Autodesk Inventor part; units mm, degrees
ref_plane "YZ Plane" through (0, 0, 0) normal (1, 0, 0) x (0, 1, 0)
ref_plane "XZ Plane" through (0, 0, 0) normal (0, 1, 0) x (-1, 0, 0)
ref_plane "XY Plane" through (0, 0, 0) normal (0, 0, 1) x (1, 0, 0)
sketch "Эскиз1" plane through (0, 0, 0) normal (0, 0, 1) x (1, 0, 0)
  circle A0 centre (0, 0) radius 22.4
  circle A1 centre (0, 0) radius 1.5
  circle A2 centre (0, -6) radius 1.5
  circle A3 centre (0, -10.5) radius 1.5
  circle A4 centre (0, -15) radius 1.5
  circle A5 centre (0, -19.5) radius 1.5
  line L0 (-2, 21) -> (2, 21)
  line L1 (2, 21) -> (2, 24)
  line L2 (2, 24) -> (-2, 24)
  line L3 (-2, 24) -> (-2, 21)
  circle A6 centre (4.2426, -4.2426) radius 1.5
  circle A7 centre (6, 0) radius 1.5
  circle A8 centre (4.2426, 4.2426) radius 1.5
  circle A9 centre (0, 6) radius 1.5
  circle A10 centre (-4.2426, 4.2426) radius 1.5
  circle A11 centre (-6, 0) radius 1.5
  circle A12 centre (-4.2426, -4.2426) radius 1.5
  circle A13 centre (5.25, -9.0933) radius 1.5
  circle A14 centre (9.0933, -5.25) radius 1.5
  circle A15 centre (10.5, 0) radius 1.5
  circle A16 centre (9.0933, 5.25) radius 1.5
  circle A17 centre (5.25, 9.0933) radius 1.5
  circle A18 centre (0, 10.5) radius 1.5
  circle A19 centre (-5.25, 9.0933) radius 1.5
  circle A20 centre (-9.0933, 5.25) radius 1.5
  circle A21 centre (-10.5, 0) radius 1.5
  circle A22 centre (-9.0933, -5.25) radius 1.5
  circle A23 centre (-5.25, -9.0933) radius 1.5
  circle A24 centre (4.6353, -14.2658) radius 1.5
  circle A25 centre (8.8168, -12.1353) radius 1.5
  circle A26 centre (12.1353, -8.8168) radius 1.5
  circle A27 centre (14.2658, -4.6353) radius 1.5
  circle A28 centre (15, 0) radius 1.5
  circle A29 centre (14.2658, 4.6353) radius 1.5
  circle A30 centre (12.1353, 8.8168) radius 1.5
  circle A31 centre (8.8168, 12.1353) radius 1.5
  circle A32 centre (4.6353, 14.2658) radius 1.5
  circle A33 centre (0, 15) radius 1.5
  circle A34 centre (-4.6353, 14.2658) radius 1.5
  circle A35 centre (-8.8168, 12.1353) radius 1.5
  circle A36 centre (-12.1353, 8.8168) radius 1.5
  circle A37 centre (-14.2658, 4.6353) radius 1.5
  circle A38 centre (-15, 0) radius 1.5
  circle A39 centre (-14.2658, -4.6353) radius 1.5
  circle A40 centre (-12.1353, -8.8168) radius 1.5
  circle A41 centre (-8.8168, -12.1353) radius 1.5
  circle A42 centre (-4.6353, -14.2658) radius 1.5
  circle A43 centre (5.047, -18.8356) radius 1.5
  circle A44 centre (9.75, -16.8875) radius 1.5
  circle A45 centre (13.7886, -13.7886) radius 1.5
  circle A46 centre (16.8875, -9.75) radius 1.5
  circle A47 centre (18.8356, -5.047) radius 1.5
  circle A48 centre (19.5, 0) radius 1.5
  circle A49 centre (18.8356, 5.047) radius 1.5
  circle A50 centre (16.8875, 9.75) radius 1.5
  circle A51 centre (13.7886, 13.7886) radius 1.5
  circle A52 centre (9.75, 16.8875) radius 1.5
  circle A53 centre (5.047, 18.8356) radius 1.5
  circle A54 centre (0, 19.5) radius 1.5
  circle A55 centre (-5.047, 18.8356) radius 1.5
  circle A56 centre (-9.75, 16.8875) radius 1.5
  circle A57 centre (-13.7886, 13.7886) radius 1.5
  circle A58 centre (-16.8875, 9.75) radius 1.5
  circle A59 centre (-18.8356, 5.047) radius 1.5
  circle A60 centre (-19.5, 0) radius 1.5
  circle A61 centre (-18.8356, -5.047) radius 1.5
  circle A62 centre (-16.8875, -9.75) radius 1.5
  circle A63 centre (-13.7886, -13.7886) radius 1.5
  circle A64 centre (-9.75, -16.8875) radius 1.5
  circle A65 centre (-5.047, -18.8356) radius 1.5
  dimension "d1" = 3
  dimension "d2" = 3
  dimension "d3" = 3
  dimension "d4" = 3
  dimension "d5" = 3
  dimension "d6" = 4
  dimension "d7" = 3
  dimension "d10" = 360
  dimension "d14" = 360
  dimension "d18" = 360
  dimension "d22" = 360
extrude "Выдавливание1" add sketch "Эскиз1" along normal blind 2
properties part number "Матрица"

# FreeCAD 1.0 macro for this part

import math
import FreeCAD as App
import Part
import Sketcher

V = App.Vector

doc = App.newDocument("Part")
body = doc.addObject("PartDesign::Body", "Body")

# Sketch on XY plane
sketch1 = body.newObject("Sketcher::SketchObject", "Sketch")
sketch1.AttachmentSupport = (doc.getObject("XY_Plane"), [""])
sketch1.MapMode = "FlatFace"
sketch1.addGeometry(Part.ArcOfCircle(Part.Circle(V(0, 0, 0), V(0, 0, 1), 22.4), math.radians(95), math.radians(445)), False)
sketch1.addGeometry(Part.LineSegment(V(2, 22.3, 0), V(2, 24, 0)), False)
sketch1.addGeometry(Part.LineSegment(V(2, 24, 0), V(-2, 24, 0)), False)
sketch1.addGeometry(Part.LineSegment(V(-2, 24, 0), V(-2, 22.3, 0)), False)
sketch1.addGeometry(Part.Circle(V(-13.8, -13.8, 0), V(0, 0, 1), 1.5), False)
sketch1.addGeometry(Part.Circle(V(-9.8, -16.9, 0), V(0, 0, 1), 1.5), False)
sketch1.addGeometry(Part.Circle(V(-5, -18.8, 0), V(0, 0, 1), 1.5), False)
sketch1.addGeometry(Part.Circle(V(-8.8, -12.1, 0), V(0, 0, 1), 1.5), False)
sketch1.addGeometry(Part.Circle(V(-4.6, -14.3, 0), V(0, 0, 1), 1.5), False)
sketch1.addGeometry(Part.Circle(V(-16.9, -9.8, 0), V(0, 0, 1), 1.5), False)
sketch1.addGeometry(Part.Circle(V(-18.8, -5, 0), V(0, 0, 1), 1.5), False)
sketch1.addGeometry(Part.Circle(V(-12.1, -8.8, 0), V(0, 0, 1), 1.5), False)
sketch1.addGeometry(Part.Circle(V(-19.5, 0, 0), V(0, 0, 1), 1.5), False)
sketch1.addGeometry(Part.Circle(V(-14.3, -4.6, 0), V(0, 0, 1), 1.5), False)
sketch1.addGeometry(Part.Circle(V(-15, 0, 0), V(0, 0, 1), 1.5), False)
sketch1.addGeometry(Part.Circle(V(-9.1, -5.2, 0), V(0, 0, 1), 1.5), False)
sketch1.addGeometry(Part.Circle(V(-5.2, -9.1, 0), V(0, 0, 1), 1.5), False)
sketch1.addGeometry(Part.Circle(V(-10.5, 0, 0), V(0, 0, 1), 1.5), False)
sketch1.addGeometry(Part.Circle(V(-6, 0, 0), V(0, 0, 1), 1.5), False)
sketch1.addGeometry(Part.Circle(V(-4.2, -4.2, 0), V(0, 0, 1), 1.5), False)
sketch1.addGeometry(Part.Circle(V(0, -19.5, 0), V(0, 0, 1), 1.5), False)
sketch1.addGeometry(Part.Circle(V(5, -18.8, 0), V(0, 0, 1), 1.5), False)
sketch1.addGeometry(Part.Circle(V(9.8, -16.9, 0), V(0, 0, 1), 1.5), False)
sketch1.addGeometry(Part.Circle(V(0, -15, 0), V(0, 0, 1), 1.5), False)
sketch1.addGeometry(Part.Circle(V(4.6, -14.3, 0), V(0, 0, 1), 1.5), False)
sketch1.addGeometry(Part.Circle(V(8.8, -12.1, 0), V(0, 0, 1), 1.5), False)
sketch1.addGeometry(Part.Circle(V(13.8, -13.8, 0), V(0, 0, 1), 1.5), False)
sketch1.addGeometry(Part.Circle(V(0, -10.5, 0), V(0, 0, 1), 1.5), False)
sketch1.addGeometry(Part.Circle(V(5.2, -9.1, 0), V(0, 0, 1), 1.5), False)
sketch1.addGeometry(Part.Circle(V(0, -6, 0), V(0, 0, 1), 1.5), False)
sketch1.addGeometry(Part.Circle(V(9.1, -5.2, 0), V(0, 0, 1), 1.5), False)
sketch1.addGeometry(Part.Circle(V(4.2, -4.2, 0), V(0, 0, 1), 1.5), False)
sketch1.addGeometry(Part.Circle(V(0, 0, 0), V(0, 0, 1), 1.5), False)
sketch1.addGeometry(Part.Circle(V(6, 0, 0), V(0, 0, 1), 1.5), False)
sketch1.addGeometry(Part.Circle(V(10.5, 0, 0), V(0, 0, 1), 1.5), False)
sketch1.addGeometry(Part.Circle(V(12.1, -8.8, 0), V(0, 0, 1), 1.5), False)
sketch1.addGeometry(Part.Circle(V(16.9, -9.8, 0), V(0, 0, 1), 1.5), False)
sketch1.addGeometry(Part.Circle(V(18.8, -5, 0), V(0, 0, 1), 1.5), False)
sketch1.addGeometry(Part.Circle(V(14.3, -4.6, 0), V(0, 0, 1), 1.5), False)
sketch1.addGeometry(Part.Circle(V(15, 0, 0), V(0, 0, 1), 1.5), False)
sketch1.addGeometry(Part.Circle(V(19.5, 0, 0), V(0, 0, 1), 1.5), False)
sketch1.addGeometry(Part.Circle(V(-18.8, 5, 0), V(0, 0, 1), 1.5), False)
sketch1.addGeometry(Part.Circle(V(-14.3, 4.6, 0), V(0, 0, 1), 1.5), False)
sketch1.addGeometry(Part.Circle(V(-16.9, 9.8, 0), V(0, 0, 1), 1.5), False)
sketch1.addGeometry(Part.Circle(V(-12.1, 8.8, 0), V(0, 0, 1), 1.5), False)
sketch1.addGeometry(Part.Circle(V(-9.1, 5.2, 0), V(0, 0, 1), 1.5), False)
sketch1.addGeometry(Part.Circle(V(-4.2, 4.2, 0), V(0, 0, 1), 1.5), False)
sketch1.addGeometry(Part.Circle(V(-8.8, 12.1, 0), V(0, 0, 1), 1.5), False)
sketch1.addGeometry(Part.Circle(V(-5.2, 9.1, 0), V(0, 0, 1), 1.5), False)
sketch1.addGeometry(Part.Circle(V(-13.8, 13.8, 0), V(0, 0, 1), 1.5), False)
sketch1.addGeometry(Part.Circle(V(-9.8, 16.9, 0), V(0, 0, 1), 1.5), False)
sketch1.addGeometry(Part.Circle(V(-4.6, 14.3, 0), V(0, 0, 1), 1.5), False)
sketch1.addGeometry(Part.Circle(V(-5, 18.8, 0), V(0, 0, 1), 1.5), False)
sketch1.addGeometry(Part.Circle(V(0, 6, 0), V(0, 0, 1), 1.5), False)
sketch1.addGeometry(Part.Circle(V(4.2, 4.2, 0), V(0, 0, 1), 1.5), False)
sketch1.addGeometry(Part.Circle(V(9.1, 5.2, 0), V(0, 0, 1), 1.5), False)
sketch1.addGeometry(Part.Circle(V(5.2, 9.1, 0), V(0, 0, 1), 1.5), False)
sketch1.addGeometry(Part.Circle(V(0, 10.5, 0), V(0, 0, 1), 1.5), False)
sketch1.addGeometry(Part.Circle(V(8.8, 12.1, 0), V(0, 0, 1), 1.5), False)
sketch1.addGeometry(Part.Circle(V(14.3, 4.6, 0), V(0, 0, 1), 1.5), False)
sketch1.addGeometry(Part.Circle(V(18.8, 5, 0), V(0, 0, 1), 1.5), False)
sketch1.addGeometry(Part.Circle(V(12.1, 8.8, 0), V(0, 0, 1), 1.5), False)
sketch1.addGeometry(Part.Circle(V(16.9, 9.8, 0), V(0, 0, 1), 1.5), False)
sketch1.addGeometry(Part.Circle(V(0, 15, 0), V(0, 0, 1), 1.5), False)
sketch1.addGeometry(Part.Circle(V(4.6, 14.3, 0), V(0, 0, 1), 1.5), False)
sketch1.addGeometry(Part.Circle(V(9.8, 16.9, 0), V(0, 0, 1), 1.5), False)
sketch1.addGeometry(Part.Circle(V(0, 19.5, 0), V(0, 0, 1), 1.5), False)
sketch1.addGeometry(Part.Circle(V(5, 18.8, 0), V(0, 0, 1), 1.5), False)
sketch1.addGeometry(Part.Circle(V(13.8, 13.8, 0), V(0, 0, 1), 1.5), False)
sketch1.addConstraint(Sketcher.Constraint("Coincident", 0, 2, 1, 1))
sketch1.addConstraint(Sketcher.Constraint("Coincident", 1, 2, 2, 1))
sketch1.addConstraint(Sketcher.Constraint("Coincident", 2, 2, 3, 1))
sketch1.addConstraint(Sketcher.Constraint("Coincident", 3, 2, 0, 1))
sketch1.addConstraint(Sketcher.Constraint("Vertical", 1))
sketch1.addConstraint(Sketcher.Constraint("Horizontal", 2))
sketch1.addConstraint(Sketcher.Constraint("Vertical", 3))
sketch1.addConstraint(Sketcher.Constraint("Coincident", 0, 3, -1, 1))
sketch1.addConstraint(Sketcher.Constraint("Coincident", 32, 3, -1, 1))
sketch1.addConstraint(Sketcher.Constraint("Equal", 4, 5))
sketch1.addConstraint(Sketcher.Constraint("Equal", 5, 6))
sketch1.addConstraint(Sketcher.Constraint("Equal", 6, 7))
sketch1.addConstraint(Sketcher.Constraint("Equal", 7, 8))
sketch1.addConstraint(Sketcher.Constraint("Equal", 8, 9))
sketch1.addConstraint(Sketcher.Constraint("Equal", 9, 10))
sketch1.addConstraint(Sketcher.Constraint("Equal", 10, 11))
sketch1.addConstraint(Sketcher.Constraint("Equal", 11, 12))
sketch1.addConstraint(Sketcher.Constraint("Equal", 12, 13))
sketch1.addConstraint(Sketcher.Constraint("Equal", 13, 14))
sketch1.addConstraint(Sketcher.Constraint("Equal", 14, 15))
sketch1.addConstraint(Sketcher.Constraint("Equal", 15, 16))
sketch1.addConstraint(Sketcher.Constraint("Equal", 16, 17))
sketch1.addConstraint(Sketcher.Constraint("Equal", 17, 18))
sketch1.addConstraint(Sketcher.Constraint("Equal", 18, 19))
sketch1.addConstraint(Sketcher.Constraint("Equal", 19, 20))
sketch1.addConstraint(Sketcher.Constraint("Equal", 20, 21))
sketch1.addConstraint(Sketcher.Constraint("Equal", 21, 22))
sketch1.addConstraint(Sketcher.Constraint("Equal", 22, 23))
sketch1.addConstraint(Sketcher.Constraint("Equal", 23, 24))
sketch1.addConstraint(Sketcher.Constraint("Equal", 24, 25))
sketch1.addConstraint(Sketcher.Constraint("Equal", 25, 26))
sketch1.addConstraint(Sketcher.Constraint("Equal", 26, 27))
sketch1.addConstraint(Sketcher.Constraint("Equal", 27, 28))
sketch1.addConstraint(Sketcher.Constraint("Equal", 28, 29))
sketch1.addConstraint(Sketcher.Constraint("Equal", 29, 30))
sketch1.addConstraint(Sketcher.Constraint("Equal", 30, 31))
sketch1.addConstraint(Sketcher.Constraint("Equal", 31, 32))
sketch1.addConstraint(Sketcher.Constraint("Equal", 32, 33))
sketch1.addConstraint(Sketcher.Constraint("Equal", 33, 34))
sketch1.addConstraint(Sketcher.Constraint("Equal", 34, 35))
sketch1.addConstraint(Sketcher.Constraint("Equal", 35, 36))
sketch1.addConstraint(Sketcher.Constraint("Equal", 36, 37))
sketch1.addConstraint(Sketcher.Constraint("Equal", 37, 38))
sketch1.addConstraint(Sketcher.Constraint("Equal", 38, 39))
sketch1.addConstraint(Sketcher.Constraint("Equal", 39, 40))
sketch1.addConstraint(Sketcher.Constraint("Equal", 40, 41))
sketch1.addConstraint(Sketcher.Constraint("Equal", 41, 42))
sketch1.addConstraint(Sketcher.Constraint("Equal", 42, 43))
sketch1.addConstraint(Sketcher.Constraint("Equal", 43, 44))
sketch1.addConstraint(Sketcher.Constraint("Equal", 44, 45))
sketch1.addConstraint(Sketcher.Constraint("Equal", 45, 46))
sketch1.addConstraint(Sketcher.Constraint("Equal", 46, 47))
sketch1.addConstraint(Sketcher.Constraint("Equal", 47, 48))
sketch1.addConstraint(Sketcher.Constraint("Equal", 48, 49))
sketch1.addConstraint(Sketcher.Constraint("Equal", 49, 50))
sketch1.addConstraint(Sketcher.Constraint("Equal", 50, 51))
sketch1.addConstraint(Sketcher.Constraint("Equal", 51, 52))
sketch1.addConstraint(Sketcher.Constraint("Equal", 52, 53))
sketch1.addConstraint(Sketcher.Constraint("Equal", 53, 54))
sketch1.addConstraint(Sketcher.Constraint("Equal", 54, 55))
sketch1.addConstraint(Sketcher.Constraint("Equal", 55, 56))
sketch1.addConstraint(Sketcher.Constraint("Equal", 56, 57))
sketch1.addConstraint(Sketcher.Constraint("Equal", 57, 58))
sketch1.addConstraint(Sketcher.Constraint("Equal", 58, 59))
sketch1.addConstraint(Sketcher.Constraint("Equal", 59, 60))
sketch1.addConstraint(Sketcher.Constraint("Equal", 60, 61))
sketch1.addConstraint(Sketcher.Constraint("Equal", 61, 62))
sketch1.addConstraint(Sketcher.Constraint("Equal", 62, 63))
sketch1.addConstraint(Sketcher.Constraint("Equal", 63, 64))
sketch1.addConstraint(Sketcher.Constraint("Equal", 64, 65))
sketch1.addConstraint(Sketcher.Constraint("Equal", 65, 66))
sketch1.addConstraint(Sketcher.Constraint("Equal", 66, 67))
sketch1.addConstraint(Sketcher.Constraint("Equal", 67, 68))
sketch1.addConstraint(Sketcher.Constraint("Symmetric", 18, 3, 33, 3, -1, 1))
sketch1.addConstraint(Sketcher.Constraint("Symmetric", 17, 3, 34, 3, -1, 1))
sketch1.addConstraint(Sketcher.Constraint("Symmetric", 14, 3, 39, 3, -1, 1))
sketch1.addConstraint(Sketcher.Constraint("Symmetric", 12, 3, 40, 3, -1, 1))
sketch1.addConstraint(Sketcher.Constraint("Symmetric", 37, 3, 41, 3, -1, 1))
sketch1.addConstraint(Sketcher.Constraint("Symmetric", 38, 3, 42, 3, -1, 1))
sketch1.addConstraint(Sketcher.Constraint("Symmetric", 36, 3, 43, 3, -1, 1))
sketch1.addConstraint(Sketcher.Constraint("Symmetric", 35, 3, 44, 3, -1, 1))
sketch1.addConstraint(Sketcher.Constraint("Symmetric", 30, 3, 45, 3, -1, 1))
sketch1.addConstraint(Sketcher.Constraint("Symmetric", 31, 3, 46, 3, -1, 1))
sketch1.addConstraint(Sketcher.Constraint("Symmetric", 25, 3, 47, 3, -1, 1))
sketch1.addConstraint(Sketcher.Constraint("Symmetric", 28, 3, 48, 3, -1, 1))
sketch1.addConstraint(Sketcher.Constraint("Symmetric", 26, 3, 49, 3, -1, 1))
sketch1.addConstraint(Sketcher.Constraint("Symmetric", 22, 3, 50, 3, -1, 1))
sketch1.addConstraint(Sketcher.Constraint("Symmetric", 24, 3, 51, 3, -1, 1))
sketch1.addConstraint(Sketcher.Constraint("Symmetric", 21, 3, 52, 3, -1, 1))
sketch1.addConstraint(Sketcher.Constraint("Symmetric", 29, 3, 53, 3, -1, 1))
sketch1.addConstraint(Sketcher.Constraint("Symmetric", 19, 3, 54, 3, -1, 1))
sketch1.addConstraint(Sketcher.Constraint("Symmetric", 15, 3, 55, 3, -1, 1))
sketch1.addConstraint(Sketcher.Constraint("Symmetric", 16, 3, 56, 3, -1, 1))
sketch1.addConstraint(Sketcher.Constraint("Symmetric", 27, 3, 57, 3, -1, 1))
sketch1.addConstraint(Sketcher.Constraint("Symmetric", 7, 3, 58, 3, -1, 1))
sketch1.addConstraint(Sketcher.Constraint("Symmetric", 13, 3, 59, 3, -1, 1))
sketch1.addConstraint(Sketcher.Constraint("Symmetric", 10, 3, 60, 3, -1, 1))
sketch1.addConstraint(Sketcher.Constraint("Symmetric", 11, 3, 61, 3, -1, 1))
sketch1.addConstraint(Sketcher.Constraint("Symmetric", 9, 3, 62, 3, -1, 1))
sketch1.addConstraint(Sketcher.Constraint("Symmetric", 23, 3, 63, 3, -1, 1))
sketch1.addConstraint(Sketcher.Constraint("Symmetric", 8, 3, 64, 3, -1, 1))
sketch1.addConstraint(Sketcher.Constraint("Symmetric", 5, 3, 65, 3, -1, 1))
sketch1.addConstraint(Sketcher.Constraint("Symmetric", 20, 3, 66, 3, -1, 1))
sketch1.addConstraint(Sketcher.Constraint("Symmetric", 6, 3, 67, 3, -1, 1))
sketch1.addConstraint(Sketcher.Constraint("Symmetric", 4, 3, 68, 3, -1, 1))
sketch1.addConstraint(Sketcher.Constraint("Symmetric", 6, 3, 21, 3, -2))
sketch1.addConstraint(Sketcher.Constraint("Symmetric", 5, 3, 22, 3, -2))
sketch1.addConstraint(Sketcher.Constraint("Symmetric", 8, 3, 24, 3, -2))
sketch1.addConstraint(Sketcher.Constraint("Symmetric", 7, 3, 25, 3, -2))
sketch1.addConstraint(Sketcher.Constraint("Symmetric", 4, 3, 26, 3, -2))
sketch1.addConstraint(Sketcher.Constraint("Symmetric", 16, 3, 28, 3, -2))
sketch1.addConstraint(Sketcher.Constraint("Symmetric", 15, 3, 30, 3, -2))
sketch1.addConstraint(Sketcher.Constraint("Symmetric", 19, 3, 31, 3, -2))
sketch1.addConstraint(Sketcher.Constraint("Symmetric", 11, 3, 35, 3, -2))
sketch1.addConstraint(Sketcher.Constraint("Symmetric", 9, 3, 36, 3, -2))
sketch1.addConstraint(Sketcher.Constraint("Symmetric", 10, 3, 37, 3, -2))
sketch1.addConstraint(Sketcher.Constraint("Symmetric", 13, 3, 38, 3, -2))
sketch1.addConstraint(Sketcher.Constraint("PointOnObject", 12, 3, -1))
sketch1.addConstraint(Sketcher.Constraint("PointOnObject", 14, 3, -1))
sketch1.addConstraint(Sketcher.Constraint("PointOnObject", 17, 3, -1))
sketch1.addConstraint(Sketcher.Constraint("PointOnObject", 18, 3, -1))
sketch1.addConstraint(Sketcher.Constraint("PointOnObject", 20, 3, -2))
sketch1.addConstraint(Sketcher.Constraint("PointOnObject", 23, 3, -2))
sketch1.addConstraint(Sketcher.Constraint("PointOnObject", 27, 3, -2))
sketch1.addConstraint(Sketcher.Constraint("PointOnObject", 29, 3, -2))
sketch1.addConstraint(Sketcher.Constraint("Horizontal", 0, 2, 3, 2))
sketch1.addConstraint(Sketcher.Constraint("Diameter", 4, 3.0))
sketch1.addConstraint(Sketcher.Constraint("DistanceX", 2, 2, 2, 1, 4.0))
sketch1.addConstraint(Sketcher.Constraint("Radius", 0, 22.4))
sketch1.addConstraint(Sketcher.Constraint("DistanceX", 14, 3, -1, 1, 15.0))
sketch1.addConstraint(Sketcher.Constraint("DistanceX", 18, 3, -1, 1, 6.0))
sketch1.addConstraint(Sketcher.Constraint("DistanceY", 23, 3, -1, 1, 15.0))
sketch1.addConstraint(Sketcher.Constraint("DistanceY", 29, 3, -1, 1, 6.0))
sketch1.addConstraint(Sketcher.Constraint("DistanceY", -1, 1, 1, 2, 24.0))
sketch1.addConstraint(Sketcher.Constraint("DistanceX", 12, 3, -1, 1, 19.5))
sketch1.addConstraint(Sketcher.Constraint("DistanceX", 17, 3, -1, 1, 10.5))
sketch1.addConstraint(Sketcher.Constraint("DistanceY", 20, 3, -1, 1, 19.5))
sketch1.addConstraint(Sketcher.Constraint("DistanceY", 27, 3, -1, 1, 10.5))
sketch1.addConstraint(Sketcher.Constraint("DistanceX", 5, 3, -1, 1, 9.75))
sketch1.addConstraint(Sketcher.Constraint("DistanceY", 9, 3, -1, 1, 9.75))
sketch1.addConstraint(Sketcher.Constraint("DistanceY", 15, 3, -1, 1, 5.25))
sketch1.addConstraint(Sketcher.Constraint("DistanceX", 16, 3, -1, 1, 5.25))
sketch1.addConstraint(Sketcher.Constraint("DistanceX", 6, 3, -1, 1, 5.047))
sketch1.addConstraint(Sketcher.Constraint("DistanceY", 10, 3, -1, 1, 5.047))
sketch1.addConstraint(Sketcher.Constraint("DistanceX", 4, 3, -1, 1, 13.7886))
sketch1.addConstraint(Sketcher.Constraint("DistanceY", 4, 3, -1, 1, 13.7886))
sketch1.addConstraint(Sketcher.Constraint("DistanceY", 5, 3, -1, 1, 16.8875))
sketch1.addConstraint(Sketcher.Constraint("DistanceY", 6, 3, -1, 1, 18.8356))
sketch1.addConstraint(Sketcher.Constraint("DistanceX", 7, 3, -1, 1, 8.8168))
sketch1.addConstraint(Sketcher.Constraint("DistanceY", 7, 3, -1, 1, 12.1353))
sketch1.addConstraint(Sketcher.Constraint("DistanceX", 8, 3, -1, 1, 4.6353))
sketch1.addConstraint(Sketcher.Constraint("DistanceY", 8, 3, -1, 1, 14.2658))
sketch1.addConstraint(Sketcher.Constraint("DistanceX", 9, 3, -1, 1, 16.8875))
sketch1.addConstraint(Sketcher.Constraint("DistanceX", 10, 3, -1, 1, 18.8356))
sketch1.addConstraint(Sketcher.Constraint("DistanceX", 11, 3, -1, 1, 12.1353))
sketch1.addConstraint(Sketcher.Constraint("DistanceY", 11, 3, -1, 1, 8.8168))
sketch1.addConstraint(Sketcher.Constraint("DistanceX", 13, 3, -1, 1, 14.2658))
sketch1.addConstraint(Sketcher.Constraint("DistanceY", 13, 3, -1, 1, 4.6353))
sketch1.addConstraint(Sketcher.Constraint("DistanceX", 15, 3, -1, 1, 9.0933))
sketch1.addConstraint(Sketcher.Constraint("DistanceY", 16, 3, -1, 1, 9.0933))
sketch1.addConstraint(Sketcher.Constraint("DistanceX", 19, 3, -1, 1, 4.2426))
sketch1.addConstraint(Sketcher.Constraint("DistanceY", 19, 3, -1, 1, 4.2426))
pad1 = body.newObject("PartDesign::Pad", "Pad")
pad1.Profile = sketch1
pad1.Length = 2

doc.recompute()
